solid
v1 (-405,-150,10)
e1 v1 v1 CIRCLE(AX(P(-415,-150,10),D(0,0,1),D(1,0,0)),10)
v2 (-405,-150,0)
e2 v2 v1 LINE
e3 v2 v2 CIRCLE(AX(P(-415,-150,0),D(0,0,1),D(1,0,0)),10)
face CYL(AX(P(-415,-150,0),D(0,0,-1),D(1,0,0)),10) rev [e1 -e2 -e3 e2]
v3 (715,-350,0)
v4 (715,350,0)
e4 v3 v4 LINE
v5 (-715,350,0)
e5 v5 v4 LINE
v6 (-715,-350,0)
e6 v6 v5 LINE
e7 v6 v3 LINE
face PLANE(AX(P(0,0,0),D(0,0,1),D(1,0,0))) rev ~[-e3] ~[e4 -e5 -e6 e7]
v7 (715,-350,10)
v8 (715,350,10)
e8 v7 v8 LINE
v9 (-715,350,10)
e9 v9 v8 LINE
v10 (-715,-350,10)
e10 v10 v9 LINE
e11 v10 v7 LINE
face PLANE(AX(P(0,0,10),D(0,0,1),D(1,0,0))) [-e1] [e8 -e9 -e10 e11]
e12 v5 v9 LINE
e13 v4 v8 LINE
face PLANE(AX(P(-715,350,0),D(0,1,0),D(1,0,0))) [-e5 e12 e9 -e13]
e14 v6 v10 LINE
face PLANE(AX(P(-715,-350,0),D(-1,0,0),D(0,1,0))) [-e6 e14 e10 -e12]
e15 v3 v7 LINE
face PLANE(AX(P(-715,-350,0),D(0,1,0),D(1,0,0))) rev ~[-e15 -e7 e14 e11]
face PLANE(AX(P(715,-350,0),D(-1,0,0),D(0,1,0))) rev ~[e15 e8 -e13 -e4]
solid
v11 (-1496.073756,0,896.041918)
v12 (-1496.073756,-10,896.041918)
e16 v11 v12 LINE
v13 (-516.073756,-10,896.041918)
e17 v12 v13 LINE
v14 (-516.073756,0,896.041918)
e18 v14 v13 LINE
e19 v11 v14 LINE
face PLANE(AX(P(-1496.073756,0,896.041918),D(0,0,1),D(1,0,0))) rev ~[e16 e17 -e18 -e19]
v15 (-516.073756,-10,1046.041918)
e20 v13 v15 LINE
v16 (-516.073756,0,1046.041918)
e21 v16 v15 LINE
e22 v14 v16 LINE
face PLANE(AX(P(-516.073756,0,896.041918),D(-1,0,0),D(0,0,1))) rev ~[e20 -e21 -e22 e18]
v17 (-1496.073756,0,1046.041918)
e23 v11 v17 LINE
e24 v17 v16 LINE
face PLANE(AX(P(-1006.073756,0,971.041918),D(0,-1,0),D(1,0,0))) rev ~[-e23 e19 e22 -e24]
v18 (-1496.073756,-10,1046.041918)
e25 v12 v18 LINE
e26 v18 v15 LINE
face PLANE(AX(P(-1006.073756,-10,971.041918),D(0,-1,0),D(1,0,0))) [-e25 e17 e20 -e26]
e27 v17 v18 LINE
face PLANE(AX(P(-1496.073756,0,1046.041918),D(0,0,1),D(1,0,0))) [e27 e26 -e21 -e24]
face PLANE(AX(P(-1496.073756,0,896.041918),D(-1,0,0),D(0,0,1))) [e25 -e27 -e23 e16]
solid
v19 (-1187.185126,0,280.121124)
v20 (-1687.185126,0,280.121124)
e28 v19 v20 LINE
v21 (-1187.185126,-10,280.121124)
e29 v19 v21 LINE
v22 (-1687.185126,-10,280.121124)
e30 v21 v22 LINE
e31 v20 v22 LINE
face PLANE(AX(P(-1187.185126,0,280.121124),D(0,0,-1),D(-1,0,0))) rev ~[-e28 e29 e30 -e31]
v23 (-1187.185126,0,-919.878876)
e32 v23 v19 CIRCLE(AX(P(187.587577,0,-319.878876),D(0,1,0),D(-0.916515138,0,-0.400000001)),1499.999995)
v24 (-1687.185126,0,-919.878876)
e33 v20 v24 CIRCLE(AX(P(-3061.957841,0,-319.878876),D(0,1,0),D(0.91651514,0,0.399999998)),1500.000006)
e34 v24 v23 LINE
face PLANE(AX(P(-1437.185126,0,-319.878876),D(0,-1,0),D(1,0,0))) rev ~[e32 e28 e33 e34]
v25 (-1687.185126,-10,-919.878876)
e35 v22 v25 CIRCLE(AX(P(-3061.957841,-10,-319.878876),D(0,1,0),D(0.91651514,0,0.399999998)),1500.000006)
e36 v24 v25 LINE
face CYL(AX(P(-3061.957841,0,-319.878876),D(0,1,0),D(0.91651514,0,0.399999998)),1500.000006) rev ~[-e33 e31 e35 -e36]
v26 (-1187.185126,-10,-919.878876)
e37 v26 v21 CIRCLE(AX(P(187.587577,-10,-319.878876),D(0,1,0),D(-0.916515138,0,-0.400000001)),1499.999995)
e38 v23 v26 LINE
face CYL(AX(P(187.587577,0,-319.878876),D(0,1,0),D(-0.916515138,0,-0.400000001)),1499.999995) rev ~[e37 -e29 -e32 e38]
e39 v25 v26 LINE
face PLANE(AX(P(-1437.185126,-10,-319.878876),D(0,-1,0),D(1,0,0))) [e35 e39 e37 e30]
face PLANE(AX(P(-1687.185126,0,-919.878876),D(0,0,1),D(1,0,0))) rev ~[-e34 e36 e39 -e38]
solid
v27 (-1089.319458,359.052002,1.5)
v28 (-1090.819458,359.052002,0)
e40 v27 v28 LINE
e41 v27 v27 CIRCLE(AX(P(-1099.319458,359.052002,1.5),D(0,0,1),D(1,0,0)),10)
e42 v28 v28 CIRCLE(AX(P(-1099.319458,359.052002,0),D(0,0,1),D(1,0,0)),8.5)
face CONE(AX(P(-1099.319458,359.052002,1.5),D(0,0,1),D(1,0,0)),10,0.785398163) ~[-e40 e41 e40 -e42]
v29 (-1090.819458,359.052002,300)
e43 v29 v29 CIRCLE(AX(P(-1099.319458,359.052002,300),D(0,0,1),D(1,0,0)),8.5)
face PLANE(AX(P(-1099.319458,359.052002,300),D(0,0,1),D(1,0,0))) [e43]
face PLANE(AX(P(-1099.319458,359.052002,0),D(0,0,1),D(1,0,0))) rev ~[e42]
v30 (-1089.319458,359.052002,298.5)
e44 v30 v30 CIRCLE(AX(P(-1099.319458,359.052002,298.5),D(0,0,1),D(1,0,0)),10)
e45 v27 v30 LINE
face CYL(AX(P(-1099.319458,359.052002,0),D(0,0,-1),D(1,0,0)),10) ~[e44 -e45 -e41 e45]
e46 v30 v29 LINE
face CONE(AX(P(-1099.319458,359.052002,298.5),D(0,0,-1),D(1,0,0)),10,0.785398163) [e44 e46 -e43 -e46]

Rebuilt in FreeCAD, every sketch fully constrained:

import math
import FreeCAD as App
import Part
import Sketcher
Q = App.Units.Quantity


def edges_at(feature, points):
    """Names of the edges that pass closest to the given points."""
    edges = feature.Shape.Edges
    near = lambda p: min(range(len(edges)), key=lambda i: edges[i].distToShape(Part.Vertex(*p))[0])
    return sorted({f"Edge{near(p) + 1}" for p in points})

doc = App.newDocument("Part")
body = doc.addObject("PartDesign::Body", "Body")

# Sketch on XY plane
sketch1 = body.newObject("Sketcher::SketchObject", "Sketch")
sketch1.AttachmentSupport = (doc.getObject("XY_Plane"), [""])
sketch1.MapMode = "FlatFace"
sketch1.addGeometry(Part.LineSegment(App.Vector(-715, 350, 0), App.Vector(-715, -350, 0)), False)
sketch1.addGeometry(Part.LineSegment(App.Vector(-715, -350, 0), App.Vector(715, -350, 0)), False)
sketch1.addGeometry(Part.LineSegment(App.Vector(715, -350, 0), App.Vector(715, 350, 0)), False)
sketch1.addGeometry(Part.LineSegment(App.Vector(715, 350, 0), App.Vector(-715, 350, 0)), False)
sketch1.addGeometry(Part.Circle(App.Vector(-415, -150, 0), App.Vector(0, 0, 1), 10), False)
sketch1.addConstraint(Sketcher.Constraint("Coincident", 0, 2, 1, 1))
sketch1.addConstraint(Sketcher.Constraint("Coincident", 1, 2, 2, 1))
sketch1.addConstraint(Sketcher.Constraint("Coincident", 2, 2, 3, 1))
sketch1.addConstraint(Sketcher.Constraint("Coincident", 3, 2, 0, 1))
sketch1.addConstraint(Sketcher.Constraint("Vertical", 0))
sketch1.addConstraint(Sketcher.Constraint("Horizontal", 1))
sketch1.addConstraint(Sketcher.Constraint("Vertical", 2))
sketch1.addConstraint(Sketcher.Constraint("Horizontal", 3))
sketch1.addConstraint(Sketcher.Constraint("Symmetric", 0, 2, 2, 2, -1, 1))
sketch1.addConstraint(Sketcher.Constraint("Diameter", 4, Q("20 mm")))
sketch1.addConstraint(Sketcher.Constraint("DistanceX", 1, 1, 1, 2, Q("1430 mm")))
sketch1.addConstraint(Sketcher.Constraint("DistanceY", 0, 2, 0, 1, Q("700 mm")))
sketch1.addConstraint(Sketcher.Constraint("DistanceX", 4, 3, -1, 1, Q("415 mm")))
sketch1.addConstraint(Sketcher.Constraint("DistanceY", 4, 3, -1, 1, Q("150 mm")))
pad1 = body.newObject("PartDesign::Pad", "Pad")
pad1.Profile = sketch1
pad1.Length = 10
body2 = doc.addObject("PartDesign::Body", "Body001")

# Sketch on XZ plane
sketch2 = body2.newObject("Sketcher::SketchObject", "Sketch001")
sketch2.AttachmentSupport = (doc.getObject("XZ_Plane001"), [""])
sketch2.MapMode = "FlatFace"
sketch2.addGeometry(Part.LineSegment(App.Vector(-1687, -920, 0), App.Vector(-1187, -920, 0)), False)
sketch2.addGeometry(Part.ArcOfCircle(Part.Circle(App.Vector(188, -320, 0), App.Vector(0, 0, 1), 1500), math.radians(156), math.radians(204)), False)
sketch2.addGeometry(Part.LineSegment(App.Vector(-1187, 280, 0), App.Vector(-1687, 280, 0)), False)
sketch2.addGeometry(Part.ArcOfCircle(Part.Circle(App.Vector(-3062, -320, 0), App.Vector(0, 0, 1), 1500), math.radians(-24), math.radians(24)), False)
sketch2.addConstraint(Sketcher.Constraint("Coincident", 0, 2, 1, 2))
sketch2.addConstraint(Sketcher.Constraint("Coincident", 1, 1, 2, 1))
sketch2.addConstraint(Sketcher.Constraint("Coincident", 2, 2, 3, 2))
sketch2.addConstraint(Sketcher.Constraint("Coincident", 3, 1, 0, 1))
sketch2.addConstraint(Sketcher.Constraint("Horizontal", 0))
sketch2.addConstraint(Sketcher.Constraint("Horizontal", 2))
sketch2.addConstraint(Sketcher.Constraint("Horizontal", 1, 3, 3, 3))
sketch2.addConstraint(Sketcher.Constraint("Equal", 0, 2))
sketch2.addConstraint(Sketcher.Constraint("DistanceX", 0, 1, 0, 2, Q("500 mm")))
sketch2.addConstraint(Sketcher.Constraint("DistanceY", 0, 2, 1, 3, Q("600 mm")))
sketch2.addConstraint(Sketcher.Constraint("Radius", 1, Q("1499.999995 mm")))
sketch2.addConstraint(Sketcher.Constraint("Radius", 3, Q("1500.000006 mm")))
sketch2.addConstraint(Sketcher.Constraint("DistanceX", 3, 3, -1, 1, Q("3061.957841 mm")))
sketch2.addConstraint(Sketcher.Constraint("DistanceY", 1, 3, -1, 1, Q("319.878876 mm")))
pad2 = body2.newObject("PartDesign::Pad", "Pad001")
pad2.Profile = sketch2
pad2.Length = 10
body3 = doc.addObject("PartDesign::Body", "Body002")

# Sketch on XZ plane
sketch3 = body3.newObject("Sketcher::SketchObject", "Sketch002")
sketch3.AttachmentSupport = (doc.getObject("XZ_Plane002"), [""])
sketch3.MapMode = "FlatFace"
sketch3.addGeometry(Part.LineSegment(App.Vector(-1496, 1046, 0), App.Vector(-1496, 896, 0)), False)
sketch3.addGeometry(Part.LineSegment(App.Vector(-1496, 896, 0), App.Vector(-516, 896, 0)), False)
sketch3.addGeometry(Part.LineSegment(App.Vector(-516, 896, 0), App.Vector(-516, 1046, 0)), False)
sketch3.addGeometry(Part.LineSegment(App.Vector(-516, 1046, 0), App.Vector(-1496, 1046, 0)), False)
sketch3.addConstraint(Sketcher.Constraint("Coincident", 0, 2, 1, 1))
sketch3.addConstraint(Sketcher.Constraint("Coincident", 1, 2, 2, 1))
sketch3.addConstraint(Sketcher.Constraint("Coincident", 2, 2, 3, 1))
sketch3.addConstraint(Sketcher.Constraint("Coincident", 3, 2, 0, 1))
sketch3.addConstraint(Sketcher.Constraint("Vertical", 0))
sketch3.addConstraint(Sketcher.Constraint("Horizontal", 1))
sketch3.addConstraint(Sketcher.Constraint("Vertical", 2))
sketch3.addConstraint(Sketcher.Constraint("Horizontal", 3))
sketch3.addConstraint(Sketcher.Constraint("DistanceX", 1, 1, 1, 2, Q("980 mm")))
sketch3.addConstraint(Sketcher.Constraint("DistanceY", 0, 2, 0, 1, Q("150 mm")))
sketch3.addConstraint(Sketcher.Constraint("DistanceY", -1, 1, 0, 2, Q("896.041918 mm")))
sketch3.addConstraint(Sketcher.Constraint("DistanceX", 0, 2, -1, 1, Q("1496.073756 mm")))
pad3 = body3.newObject("PartDesign::Pad", "Pad002")
pad3.Profile = sketch3
pad3.Length = 10
body4 = doc.addObject("PartDesign::Body", "Body003")

# Sketch on XY plane
sketch4 = body4.newObject("Sketcher::SketchObject", "Sketch003")
sketch4.AttachmentSupport = (doc.getObject("XY_Plane003"), [""])
sketch4.MapMode = "FlatFace"
sketch4.addGeometry(Part.Circle(App.Vector(-1099, 359, 0), App.Vector(0, 0, 1), 10), False)
sketch4.addConstraint(Sketcher.Constraint("Diameter", 0, Q("20 mm")))
sketch4.addConstraint(Sketcher.Constraint("DistanceY", -1, 1, 0, 3, Q("359.052002 mm")))
sketch4.addConstraint(Sketcher.Constraint("DistanceX", 0, 3, -1, 1, Q("1099.319458 mm")))
pad4 = body4.newObject("PartDesign::Pad", "Pad003")
pad4.Profile = sketch4
pad4.Length = 300
doc.recompute()

chamfer = body4.newObject("PartDesign::Chamfer", "Chamfer")
chamfer.Base = (pad4, edges_at(pad4, [(-1109.319, 359.052, 300), (-1109.319, 359.052, 0)]))
chamfer.Size = 1.5

doc.recompute()
